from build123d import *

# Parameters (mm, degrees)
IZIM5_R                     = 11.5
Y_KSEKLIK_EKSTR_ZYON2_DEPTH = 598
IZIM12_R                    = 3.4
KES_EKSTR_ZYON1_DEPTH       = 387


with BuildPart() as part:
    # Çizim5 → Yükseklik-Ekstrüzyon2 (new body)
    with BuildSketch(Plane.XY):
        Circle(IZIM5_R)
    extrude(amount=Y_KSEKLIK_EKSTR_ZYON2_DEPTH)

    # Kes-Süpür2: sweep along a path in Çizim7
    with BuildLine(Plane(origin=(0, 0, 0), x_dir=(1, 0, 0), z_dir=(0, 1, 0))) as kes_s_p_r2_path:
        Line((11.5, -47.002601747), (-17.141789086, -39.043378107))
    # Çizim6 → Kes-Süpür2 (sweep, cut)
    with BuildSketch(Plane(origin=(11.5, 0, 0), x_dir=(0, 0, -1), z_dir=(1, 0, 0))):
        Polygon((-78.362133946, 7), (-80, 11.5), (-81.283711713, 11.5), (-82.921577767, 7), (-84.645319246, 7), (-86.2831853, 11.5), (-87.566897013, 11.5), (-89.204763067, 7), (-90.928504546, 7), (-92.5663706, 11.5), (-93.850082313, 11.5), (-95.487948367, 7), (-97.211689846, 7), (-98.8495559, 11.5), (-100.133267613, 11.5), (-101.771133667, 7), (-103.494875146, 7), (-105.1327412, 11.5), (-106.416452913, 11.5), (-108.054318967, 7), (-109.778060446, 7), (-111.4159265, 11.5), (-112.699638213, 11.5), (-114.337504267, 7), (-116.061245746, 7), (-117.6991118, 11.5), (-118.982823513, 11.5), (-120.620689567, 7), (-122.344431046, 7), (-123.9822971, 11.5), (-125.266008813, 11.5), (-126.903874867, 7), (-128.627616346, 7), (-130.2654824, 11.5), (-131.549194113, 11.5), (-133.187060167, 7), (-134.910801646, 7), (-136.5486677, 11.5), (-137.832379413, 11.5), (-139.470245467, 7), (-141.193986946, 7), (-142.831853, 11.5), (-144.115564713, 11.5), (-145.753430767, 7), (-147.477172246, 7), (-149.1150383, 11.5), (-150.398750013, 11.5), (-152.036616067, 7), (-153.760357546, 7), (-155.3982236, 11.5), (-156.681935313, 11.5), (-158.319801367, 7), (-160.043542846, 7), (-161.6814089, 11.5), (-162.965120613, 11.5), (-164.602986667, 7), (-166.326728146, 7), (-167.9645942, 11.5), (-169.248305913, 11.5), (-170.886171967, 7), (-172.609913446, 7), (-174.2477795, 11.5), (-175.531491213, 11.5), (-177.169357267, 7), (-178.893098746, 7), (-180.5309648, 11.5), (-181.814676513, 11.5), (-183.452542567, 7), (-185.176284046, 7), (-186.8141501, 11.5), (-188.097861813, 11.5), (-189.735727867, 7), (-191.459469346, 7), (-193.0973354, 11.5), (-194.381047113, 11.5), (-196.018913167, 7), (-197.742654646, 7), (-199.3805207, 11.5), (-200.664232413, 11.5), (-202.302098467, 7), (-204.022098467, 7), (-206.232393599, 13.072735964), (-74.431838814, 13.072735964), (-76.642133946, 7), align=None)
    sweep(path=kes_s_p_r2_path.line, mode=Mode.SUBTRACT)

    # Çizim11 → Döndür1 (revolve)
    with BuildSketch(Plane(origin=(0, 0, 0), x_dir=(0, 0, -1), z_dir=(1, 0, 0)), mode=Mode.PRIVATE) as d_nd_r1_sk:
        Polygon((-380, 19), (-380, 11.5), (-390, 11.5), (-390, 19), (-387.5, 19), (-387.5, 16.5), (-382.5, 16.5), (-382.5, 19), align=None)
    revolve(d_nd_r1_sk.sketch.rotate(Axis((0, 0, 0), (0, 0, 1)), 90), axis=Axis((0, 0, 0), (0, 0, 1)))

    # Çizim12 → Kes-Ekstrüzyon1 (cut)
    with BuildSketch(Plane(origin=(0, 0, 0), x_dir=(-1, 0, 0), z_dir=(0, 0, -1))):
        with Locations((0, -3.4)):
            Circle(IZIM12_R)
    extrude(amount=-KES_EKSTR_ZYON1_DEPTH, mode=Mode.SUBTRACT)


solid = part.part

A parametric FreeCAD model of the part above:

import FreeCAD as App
import Part
import Sketcher

V = App.Vector
Q = App.Units.Quantity


def add_polygon(sketch, points):
    """Adds a closed chain of lines whose ends are joined by coincident constraints."""
    first, n = sketch.GeometryCount, len(points)
    for a, b in zip(points, points[1:] + points[:1]):
        sketch.addGeometry(Part.LineSegment(App.Vector(*a, 0), App.Vector(*b, 0)), False)
    for i in range(n):
        sketch.addConstraint(Sketcher.Constraint("Coincident", first + i, 2, first + (i + 1) % n, 1))

doc = App.newDocument("Part")
body = doc.addObject("PartDesign::Body", "Body")

sketch1 = body.newObject("Sketcher::SketchObject", "Sketch")
sketch1.AttachmentSupport = (doc.getObject("XY_Plane"), [""])
sketch1.MapMode = "FlatFace"
sketch1.addGeometry(Part.Circle(V(0, 0, 0), V(0, 0, 1), 11.5), False)
sketch1.addConstraint(Sketcher.Constraint("Coincident", 0, 3, -1, 1))
sketch1.addConstraint(Sketcher.Constraint("Diameter", 0, 23.0))
pad1 = body.newObject("PartDesign::Pad", "Pad")
pad1.Profile = sketch1
pad1.Length = 598

sketch2 = body.newObject("Sketcher::SketchObject", "Sketch001")
sketch2.AttachmentSupport = (doc.getObject("YZ_Plane"), [""])
sketch2.MapMode = "FlatFace"
sketch2.AttachmentOffset = App.Placement(V(0, 0, 11.5), App.Rotation())
add_polygon(sketch2, [(11.5, 80), (7, 78.362134), (7, 76.642134), (13.072736, 74.431839), (13.072736, 206.232394), (7, 204.022098), (7, 202.302098), (11.5, 200.664232), (11.5, 199.380521), (7, 197.742655), (7, 196.018913), (11.5, 194.381047), (11.5, 193.097335), (7, 191.459469), (7, 189.735728), (11.5, 188.097862), (11.5, 186.81415), (7, 185.176284), (7, 183.452543), (11.5, 181.814677), (11.5, 180.530965), (7, 178.893099), (7, 177.169357), (11.5, 175.531491), (11.5, 174.24778), (7, 172.609913), (7, 170.886172), (11.5, 169.248306), (11.5, 167.964594), (7, 166.326728), (7, 164.602987), (11.5, 162.965121), (11.5, 161.681409), (7, 160.043543), (7, 158.319801), (11.5, 156.681935), (11.5, 155.398224), (7, 153.760358), (7, 152.036616), (11.5, 150.39875), (11.5, 149.115038), (7, 147.477172), (7, 145.753431), (11.5, 144.115565), (11.5, 142.831853), (7, 141.193987), (7, 139.470245), (11.5, 137.832379), (11.5, 136.548668), (7, 134.910802), (7, 133.18706), (11.5, 131.549194), (11.5, 130.265482), (7, 128.627616), (7, 126.903875), (11.5, 125.266009), (11.5, 123.982297), (7, 122.344431), (7, 120.62069), (11.5, 118.982824), (11.5, 117.699112), (7, 116.061246), (7, 114.337504), (11.5, 112.699638), (11.5, 111.415926), (7, 109.77806), (7, 108.054319), (11.5, 106.416453), (11.5, 105.132741), (7, 103.494875), (7, 101.771134), (11.5, 100.133268), (11.5, 98.849556), (7, 97.21169), (7, 95.487948), (11.5, 93.850082), (11.5, 92.566371), (7, 90.928505), (7, 89.204763), (11.5, 87.566897), (11.5, 86.283185), (7, 84.645319), (7, 82.921578), (11.5, 81.283712)])
sketch2.addConstraint(Sketcher.Constraint("Vertical", 1))
sketch2.addConstraint(Sketcher.Constraint("Vertical", 3))
sketch2.addConstraint(Sketcher.Constraint("Vertical", 5))
sketch2.addConstraint(Sketcher.Constraint("Vertical", 7))
sketch2.addConstraint(Sketcher.Constraint("Vertical", 9))
sketch2.addConstraint(Sketcher.Constraint("Vertical", 11))
sketch2.addConstraint(Sketcher.Constraint("Vertical", 13))
sketch2.addConstraint(Sketcher.Constraint("Vertical", 15))
sketch2.addConstraint(Sketcher.Constraint("Vertical", 17))
sketch2.addConstraint(Sketcher.Constraint("Vertical", 19))
sketch2.addConstraint(Sketcher.Constraint("Vertical", 21))
sketch2.addConstraint(Sketcher.Constraint("Vertical", 23))
sketch2.addConstraint(Sketcher.Constraint("Vertical", 25))
sketch2.addConstraint(Sketcher.Constraint("Vertical", 27))
sketch2.addConstraint(Sketcher.Constraint("Vertical", 29))
sketch2.addConstraint(Sketcher.Constraint("Vertical", 31))
sketch2.addConstraint(Sketcher.Constraint("Vertical", 33))
sketch2.addConstraint(Sketcher.Constraint("Vertical", 35))
sketch2.addConstraint(Sketcher.Constraint("Vertical", 37))
sketch2.addConstraint(Sketcher.Constraint("Vertical", 39))
sketch2.addConstraint(Sketcher.Constraint("Vertical", 41))
sketch2.addConstraint(Sketcher.Constraint("Vertical", 43))
sketch2.addConstraint(Sketcher.Constraint("Vertical", 45))
sketch2.addConstraint(Sketcher.Constraint("Vertical", 47))
sketch2.addConstraint(Sketcher.Constraint("Vertical", 49))
sketch2.addConstraint(Sketcher.Constraint("Vertical", 51))
sketch2.addConstraint(Sketcher.Constraint("Vertical", 53))
sketch2.addConstraint(Sketcher.Constraint("Vertical", 55))
sketch2.addConstraint(Sketcher.Constraint("Vertical", 57))
sketch2.addConstraint(Sketcher.Constraint("Vertical", 59))
sketch2.addConstraint(Sketcher.Constraint("Vertical", 61))
sketch2.addConstraint(Sketcher.Constraint("Vertical", 63))
sketch2.addConstraint(Sketcher.Constraint("Vertical", 65))
sketch2.addConstraint(Sketcher.Constraint("Vertical", 67))
sketch2.addConstraint(Sketcher.Constraint("Vertical", 69))
sketch2.addConstraint(Sketcher.Constraint("Vertical", 71))
sketch2.addConstraint(Sketcher.Constraint("Vertical", 73))
sketch2.addConstraint(Sketcher.Constraint("Vertical", 75))
sketch2.addConstraint(Sketcher.Constraint("Vertical", 77))
sketch2.addConstraint(Sketcher.Constraint("Vertical", 79))
sketch2.addConstraint(Sketcher.Constraint("Vertical", 81))
sketch2.addConstraint(Sketcher.Constraint("Vertical", 83))
sketch2.addConstraint(Sketcher.Constraint("Parallel", 0, 4))
sketch2.addConstraint(Sketcher.Constraint("Parallel", 2, 6))
sketch2.addConstraint(Sketcher.Constraint("Parallel", 4, 8))
sketch2.addConstraint(Sketcher.Constraint("Parallel", 6, 10))
sketch2.addConstraint(Sketcher.Constraint("Parallel", 8, 12))
sketch2.addConstraint(Sketcher.Constraint("Parallel", 10, 14))
sketch2.addConstraint(Sketcher.Constraint("Parallel", 12, 16))
sketch2.addConstraint(Sketcher.Constraint("Parallel", 14, 18))
sketch2.addConstraint(Sketcher.Constraint("Parallel", 16, 20))
sketch2.addConstraint(Sketcher.Constraint("Parallel", 18, 22))
sketch2.addConstraint(Sketcher.Constraint("Parallel", 20, 24))
sketch2.addConstraint(Sketcher.Constraint("Parallel", 22, 26))
sketch2.addConstraint(Sketcher.Constraint("Parallel", 24, 28))
sketch2.addConstraint(Sketcher.Constraint("Parallel", 26, 30))
sketch2.addConstraint(Sketcher.Constraint("Parallel", 28, 32))
sketch2.addConstraint(Sketcher.Constraint("Parallel", 30, 34))
sketch2.addConstraint(Sketcher.Constraint("Parallel", 32, 36))
sketch2.addConstraint(Sketcher.Constraint("Parallel", 34, 38))
sketch2.addConstraint(Sketcher.Constraint("Parallel", 36, 40))
sketch2.addConstraint(Sketcher.Constraint("Parallel", 38, 42))
sketch2.addConstraint(Sketcher.Constraint("Parallel", 40, 44))
sketch2.addConstraint(Sketcher.Constraint("Parallel", 42, 46))
sketch2.addConstraint(Sketcher.Constraint("Parallel", 44, 48))
sketch2.addConstraint(Sketcher.Constraint("Parallel", 46, 50))
sketch2.addConstraint(Sketcher.Constraint("Parallel", 48, 52))
sketch2.addConstraint(Sketcher.Constraint("Parallel", 50, 54))
sketch2.addConstraint(Sketcher.Constraint("Parallel", 52, 56))
sketch2.addConstraint(Sketcher.Constraint("Parallel", 54, 58))
sketch2.addConstraint(Sketcher.Constraint("Parallel", 56, 60))
sketch2.addConstraint(Sketcher.Constraint("Parallel", 58, 62))
sketch2.addConstraint(Sketcher.Constraint("Parallel", 60, 64))
sketch2.addConstraint(Sketcher.Constraint("Parallel", 62, 66))
sketch2.addConstraint(Sketcher.Constraint("Parallel", 64, 68))
sketch2.addConstraint(Sketcher.Constraint("Parallel", 66, 70))
sketch2.addConstraint(Sketcher.Constraint("Parallel", 68, 72))
sketch2.addConstraint(Sketcher.Constraint("Parallel", 70, 74))
sketch2.addConstraint(Sketcher.Constraint("Parallel", 72, 76))
sketch2.addConstraint(Sketcher.Constraint("Parallel", 74, 78))
sketch2.addConstraint(Sketcher.Constraint("Parallel", 76, 80))
sketch2.addConstraint(Sketcher.Constraint("Parallel", 78, 82))
sketch2.addConstraint(Sketcher.Constraint("Vertical", 1, 2, 4, 2))
sketch2.addConstraint(Sketcher.Constraint("Vertical", 5, 2, 8, 2))
sketch2.addConstraint(Sketcher.Constraint("Vertical", 7, 2, 10, 2))
sketch2.addConstraint(Sketcher.Constraint("Vertical", 9, 2, 12, 2))
sketch2.addConstraint(Sketcher.Constraint("Vertical", 11, 2, 14, 2))
sketch2.addConstraint(Sketcher.Constraint("Vertical", 13, 2, 16, 2))
sketch2.addConstraint(Sketcher.Constraint("Vertical", 15, 2, 18, 2))
sketch2.addConstraint(Sketcher.Constraint("Vertical", 17, 2, 20, 2))
sketch2.addConstraint(Sketcher.Constraint("Vertical", 19, 2, 22, 2))
sketch2.addConstraint(Sketcher.Constraint("Vertical", 21, 2, 24, 2))
sketch2.addConstraint(Sketcher.Constraint("Vertical", 23, 2, 26, 2))
sketch2.addConstraint(Sketcher.Constraint("Vertical", 25, 2, 28, 2))
sketch2.addConstraint(Sketcher.Constraint("Vertical", 27, 2, 30, 2))
sketch2.addConstraint(Sketcher.Constraint("Vertical", 29, 2, 32, 2))
sketch2.addConstraint(Sketcher.Constraint("Vertical", 31, 2, 34, 2))
sketch2.addConstraint(Sketcher.Constraint("Vertical", 33, 2, 36, 2))
sketch2.addConstraint(Sketcher.Constraint("Vertical", 35, 2, 38, 2))
sketch2.addConstraint(Sketcher.Constraint("Vertical", 37, 2, 40, 2))
sketch2.addConstraint(Sketcher.Constraint("Vertical", 39, 2, 42, 2))
sketch2.addConstraint(Sketcher.Constraint("Vertical", 41, 2, 44, 2))
sketch2.addConstraint(Sketcher.Constraint("Vertical", 43, 2, 46, 2))
sketch2.addConstraint(Sketcher.Constraint("Vertical", 45, 2, 48, 2))
sketch2.addConstraint(Sketcher.Constraint("Vertical", 47, 2, 50, 2))
sketch2.addConstraint(Sketcher.Constraint("Vertical", 49, 2, 52, 2))
sketch2.addConstraint(Sketcher.Constraint("Vertical", 51, 2, 54, 2))
sketch2.addConstraint(Sketcher.Constraint("Vertical", 53, 2, 56, 2))
sketch2.addConstraint(Sketcher.Constraint("Vertical", 55, 2, 58, 2))
sketch2.addConstraint(Sketcher.Constraint("Vertical", 57, 2, 60, 2))
sketch2.addConstraint(Sketcher.Constraint("Vertical", 59, 2, 62, 2))
sketch2.addConstraint(Sketcher.Constraint("Vertical", 61, 2, 64, 2))
sketch2.addConstraint(Sketcher.Constraint("Vertical", 63, 2, 66, 2))
sketch2.addConstraint(Sketcher.Constraint("Vertical", 65, 2, 68, 2))
sketch2.addConstraint(Sketcher.Constraint("Vertical", 67, 2, 70, 2))
sketch2.addConstraint(Sketcher.Constraint("Vertical", 69, 2, 72, 2))
sketch2.addConstraint(Sketcher.Constraint("Vertical", 71, 2, 74, 2))
sketch2.addConstraint(Sketcher.Constraint("Vertical", 73, 2, 76, 2))
sketch2.addConstraint(Sketcher.Constraint("Vertical", 75, 2, 78, 2))
sketch2.addConstraint(Sketcher.Constraint("Vertical", 77, 2, 80, 2))
sketch2.addConstraint(Sketcher.Constraint("Vertical", 79, 2, 82, 2))
sketch2.addConstraint(Sketcher.Constraint("Equal", 1, 5))
sketch2.addConstraint(Sketcher.Constraint("Equal", 7, 11))
sketch2.addConstraint(Sketcher.Constraint("Equal", 9, 13))
sketch2.addConstraint(Sketcher.Constraint("Equal", 11, 15))
sketch2.addConstraint(Sketcher.Constraint("Equal", 13, 17))
sketch2.addConstraint(Sketcher.Constraint("Equal", 15, 19))
sketch2.addConstraint(Sketcher.Constraint("Equal", 17, 21))
sketch2.addConstraint(Sketcher.Constraint("Equal", 19, 23))
sketch2.addConstraint(Sketcher.Constraint("Equal", 21, 25))
sketch2.addConstraint(Sketcher.Constraint("Equal", 23, 27))
sketch2.addConstraint(Sketcher.Constraint("Equal", 25, 29))
sketch2.addConstraint(Sketcher.Constraint("Equal", 27, 31))
sketch2.addConstraint(Sketcher.Constraint("Equal", 29, 33))
sketch2.addConstraint(Sketcher.Constraint("Equal", 31, 35))
sketch2.addConstraint(Sketcher.Constraint("Equal", 33, 37))
sketch2.addConstraint(Sketcher.Constraint("Equal", 35, 39))
sketch2.addConstraint(Sketcher.Constraint("Equal", 37, 41))
sketch2.addConstraint(Sketcher.Constraint("Equal", 39, 43))
sketch2.addConstraint(Sketcher.Constraint("Equal", 41, 45))
sketch2.addConstraint(Sketcher.Constraint("Equal", 43, 47))
sketch2.addConstraint(Sketcher.Constraint("Equal", 45, 49))
sketch2.addConstraint(Sketcher.Constraint("Equal", 47, 51))
sketch2.addConstraint(Sketcher.Constraint("Equal", 49, 53))
sketch2.addConstraint(Sketcher.Constraint("Equal", 51, 55))
sketch2.addConstraint(Sketcher.Constraint("Equal", 53, 57))
sketch2.addConstraint(Sketcher.Constraint("Equal", 55, 59))
sketch2.addConstraint(Sketcher.Constraint("Equal", 57, 61))
sketch2.addConstraint(Sketcher.Constraint("Equal", 59, 63))
sketch2.addConstraint(Sketcher.Constraint("Equal", 61, 65))
sketch2.addConstraint(Sketcher.Constraint("Equal", 63, 67))
sketch2.addConstraint(Sketcher.Constraint("Equal", 65, 69))
sketch2.addConstraint(Sketcher.Constraint("Equal", 67, 71))
sketch2.addConstraint(Sketcher.Constraint("Equal", 69, 73))
sketch2.addConstraint(Sketcher.Constraint("Equal", 71, 75))
sketch2.addConstraint(Sketcher.Constraint("Equal", 73, 77))
sketch2.addConstraint(Sketcher.Constraint("Equal", 75, 79))
sketch2.addConstraint(Sketcher.Constraint("Equal", 77, 81))
sketch2.addConstraint(Sketcher.Constraint("Equal", 79, 83))
sketch2.addConstraint(Sketcher.Constraint("Equal", 2, 4))
sketch2.addConstraint(Sketcher.Constraint("Angle", 0, Q("-160 deg")))
sketch2.addConstraint(Sketcher.Constraint("DistanceX", -1, 1, 0, 2, 7.0))
sketch2.addConstraint(Sketcher.Constraint("DistanceY", -1, 1, 83, 2, 80.0))
sketch2.addConstraint(Sketcher.Constraint("DistanceY", 1, 2, 1, 1, 1.72))
sketch2.addConstraint(Sketcher.Constraint("DistanceX", -1, 1, 6, 2, 11.5))
sketch2.addConstraint(Sketcher.Constraint("DistanceY", 7, 2, 7, 1, 1.283712))
sketch2.addConstraint(Sketcher.Constraint("DistanceY", 9, 2, 9, 1, 1.723741))
sketch2.addConstraint(Sketcher.Constraint("Distance", 2, 6.462471))

sketch3 = body.newObject("Sketcher::SketchObject", "Sketch002")
sketch3.Placement = App.Placement(V(-11.300761, 0, 40.666532), App.Rotation(V(-0.963490395, 0, -0.267742895), V(0, 0.999999999, 0), V(0.267742895, 0, -0.963490395), "ZXY"))
sketch3.addGeometry(Part.LineSegment(V(-23.664752, 0, 0), V(6.062362, 0, 0)), False)
sketch3.addConstraint(Sketcher.Constraint("Horizontal", 0))
sketch3.addConstraint(Sketcher.Constraint("PointOnObject", 0, 1, -1))
sketch3.addConstraint(Sketcher.Constraint("DistanceX", 0, 1, 0, 2, 29.727114))
sketch3.addConstraint(Sketcher.Constraint("DistanceX", 0, 1, -1, 1, 23.664752))
doc.recompute()

subtractivepipe = body.newObject("PartDesign::SubtractivePipe", "SubtractivePipe")
subtractivepipe.Profile = sketch2
subtractivepipe.Spine = (sketch3, ["Edge1"])

sketch4 = body.newObject("Sketcher::SketchObject", "Sketch003")
sketch4.AttachmentSupport = (doc.getObject("YZ_Plane"), [""])
sketch4.MapMode = "FlatFace"
add_polygon(sketch4, [(11.5, 380), (19, 380), (19, 382.5), (16.5, 382.5), (16.5, 387.5), (19, 387.5), (19, 390), (11.5, 390)])
sketch4.addConstraint(Sketcher.Constraint("Horizontal", 0))
sketch4.addConstraint(Sketcher.Constraint("Vertical", 1))
sketch4.addConstraint(Sketcher.Constraint("Horizontal", 2))
sketch4.addConstraint(Sketcher.Constraint("Vertical", 3))
sketch4.addConstraint(Sketcher.Constraint("Horizontal", 4))
sketch4.addConstraint(Sketcher.Constraint("Vertical", 5))
sketch4.addConstraint(Sketcher.Constraint("Horizontal", 6))
sketch4.addConstraint(Sketcher.Constraint("Vertical", 7))
sketch4.addConstraint(Sketcher.Constraint("Vertical", 1, 2, 4, 2))
sketch4.addConstraint(Sketcher.Constraint("Equal", 4, 1))
sketch4.addConstraint(Sketcher.Constraint("Equal", 1, 5))
sketch4.addConstraint(Sketcher.Constraint("DistanceY", 3, 1, 3, 2, 5.0))
sketch4.addConstraint(Sketcher.Constraint("DistanceY", 7, 2, 7, 1, 10.0))
sketch4.addConstraint(Sketcher.Constraint("DistanceX", 0, 1, 0, 2, 7.5))
sketch4.addConstraint(Sketcher.Constraint("DistanceX", -1, 1, 0, 2, 19.0))
sketch4.addConstraint(Sketcher.Constraint("DistanceY", -1, 1, 0, 2, 380.0))
revolution = body.newObject("PartDesign::Revolution", "Revolution")
revolution.Profile = sketch4
revolution.ReferenceAxis = (sketch4, ["V_Axis"])
revolution.Angle = 360

sketch5 = body.newObject("Sketcher::SketchObject", "Sketch004")
sketch5.AttachmentSupport = (doc.getObject("XY_Plane"), [""])
sketch5.MapMode = "FlatFace"
sketch5.addGeometry(Part.Circle(V(0, -3.4, 0), V(0, 0, 1), 3.4), False)
sketch5.addConstraint(Sketcher.Constraint("PointOnObject", 0, 3, -2))
sketch5.addConstraint(Sketcher.Constraint("Diameter", 0, 6.8))
sketch5.addConstraint(Sketcher.Constraint("DistanceY", 0, 3, -1, 1, 3.4))
pocket1 = body.newObject("PartDesign::Pocket", "Pocket")
pocket1.Profile = sketch5
pocket1.Length = 387
pocket1.Reversed = True

doc.recompute()
